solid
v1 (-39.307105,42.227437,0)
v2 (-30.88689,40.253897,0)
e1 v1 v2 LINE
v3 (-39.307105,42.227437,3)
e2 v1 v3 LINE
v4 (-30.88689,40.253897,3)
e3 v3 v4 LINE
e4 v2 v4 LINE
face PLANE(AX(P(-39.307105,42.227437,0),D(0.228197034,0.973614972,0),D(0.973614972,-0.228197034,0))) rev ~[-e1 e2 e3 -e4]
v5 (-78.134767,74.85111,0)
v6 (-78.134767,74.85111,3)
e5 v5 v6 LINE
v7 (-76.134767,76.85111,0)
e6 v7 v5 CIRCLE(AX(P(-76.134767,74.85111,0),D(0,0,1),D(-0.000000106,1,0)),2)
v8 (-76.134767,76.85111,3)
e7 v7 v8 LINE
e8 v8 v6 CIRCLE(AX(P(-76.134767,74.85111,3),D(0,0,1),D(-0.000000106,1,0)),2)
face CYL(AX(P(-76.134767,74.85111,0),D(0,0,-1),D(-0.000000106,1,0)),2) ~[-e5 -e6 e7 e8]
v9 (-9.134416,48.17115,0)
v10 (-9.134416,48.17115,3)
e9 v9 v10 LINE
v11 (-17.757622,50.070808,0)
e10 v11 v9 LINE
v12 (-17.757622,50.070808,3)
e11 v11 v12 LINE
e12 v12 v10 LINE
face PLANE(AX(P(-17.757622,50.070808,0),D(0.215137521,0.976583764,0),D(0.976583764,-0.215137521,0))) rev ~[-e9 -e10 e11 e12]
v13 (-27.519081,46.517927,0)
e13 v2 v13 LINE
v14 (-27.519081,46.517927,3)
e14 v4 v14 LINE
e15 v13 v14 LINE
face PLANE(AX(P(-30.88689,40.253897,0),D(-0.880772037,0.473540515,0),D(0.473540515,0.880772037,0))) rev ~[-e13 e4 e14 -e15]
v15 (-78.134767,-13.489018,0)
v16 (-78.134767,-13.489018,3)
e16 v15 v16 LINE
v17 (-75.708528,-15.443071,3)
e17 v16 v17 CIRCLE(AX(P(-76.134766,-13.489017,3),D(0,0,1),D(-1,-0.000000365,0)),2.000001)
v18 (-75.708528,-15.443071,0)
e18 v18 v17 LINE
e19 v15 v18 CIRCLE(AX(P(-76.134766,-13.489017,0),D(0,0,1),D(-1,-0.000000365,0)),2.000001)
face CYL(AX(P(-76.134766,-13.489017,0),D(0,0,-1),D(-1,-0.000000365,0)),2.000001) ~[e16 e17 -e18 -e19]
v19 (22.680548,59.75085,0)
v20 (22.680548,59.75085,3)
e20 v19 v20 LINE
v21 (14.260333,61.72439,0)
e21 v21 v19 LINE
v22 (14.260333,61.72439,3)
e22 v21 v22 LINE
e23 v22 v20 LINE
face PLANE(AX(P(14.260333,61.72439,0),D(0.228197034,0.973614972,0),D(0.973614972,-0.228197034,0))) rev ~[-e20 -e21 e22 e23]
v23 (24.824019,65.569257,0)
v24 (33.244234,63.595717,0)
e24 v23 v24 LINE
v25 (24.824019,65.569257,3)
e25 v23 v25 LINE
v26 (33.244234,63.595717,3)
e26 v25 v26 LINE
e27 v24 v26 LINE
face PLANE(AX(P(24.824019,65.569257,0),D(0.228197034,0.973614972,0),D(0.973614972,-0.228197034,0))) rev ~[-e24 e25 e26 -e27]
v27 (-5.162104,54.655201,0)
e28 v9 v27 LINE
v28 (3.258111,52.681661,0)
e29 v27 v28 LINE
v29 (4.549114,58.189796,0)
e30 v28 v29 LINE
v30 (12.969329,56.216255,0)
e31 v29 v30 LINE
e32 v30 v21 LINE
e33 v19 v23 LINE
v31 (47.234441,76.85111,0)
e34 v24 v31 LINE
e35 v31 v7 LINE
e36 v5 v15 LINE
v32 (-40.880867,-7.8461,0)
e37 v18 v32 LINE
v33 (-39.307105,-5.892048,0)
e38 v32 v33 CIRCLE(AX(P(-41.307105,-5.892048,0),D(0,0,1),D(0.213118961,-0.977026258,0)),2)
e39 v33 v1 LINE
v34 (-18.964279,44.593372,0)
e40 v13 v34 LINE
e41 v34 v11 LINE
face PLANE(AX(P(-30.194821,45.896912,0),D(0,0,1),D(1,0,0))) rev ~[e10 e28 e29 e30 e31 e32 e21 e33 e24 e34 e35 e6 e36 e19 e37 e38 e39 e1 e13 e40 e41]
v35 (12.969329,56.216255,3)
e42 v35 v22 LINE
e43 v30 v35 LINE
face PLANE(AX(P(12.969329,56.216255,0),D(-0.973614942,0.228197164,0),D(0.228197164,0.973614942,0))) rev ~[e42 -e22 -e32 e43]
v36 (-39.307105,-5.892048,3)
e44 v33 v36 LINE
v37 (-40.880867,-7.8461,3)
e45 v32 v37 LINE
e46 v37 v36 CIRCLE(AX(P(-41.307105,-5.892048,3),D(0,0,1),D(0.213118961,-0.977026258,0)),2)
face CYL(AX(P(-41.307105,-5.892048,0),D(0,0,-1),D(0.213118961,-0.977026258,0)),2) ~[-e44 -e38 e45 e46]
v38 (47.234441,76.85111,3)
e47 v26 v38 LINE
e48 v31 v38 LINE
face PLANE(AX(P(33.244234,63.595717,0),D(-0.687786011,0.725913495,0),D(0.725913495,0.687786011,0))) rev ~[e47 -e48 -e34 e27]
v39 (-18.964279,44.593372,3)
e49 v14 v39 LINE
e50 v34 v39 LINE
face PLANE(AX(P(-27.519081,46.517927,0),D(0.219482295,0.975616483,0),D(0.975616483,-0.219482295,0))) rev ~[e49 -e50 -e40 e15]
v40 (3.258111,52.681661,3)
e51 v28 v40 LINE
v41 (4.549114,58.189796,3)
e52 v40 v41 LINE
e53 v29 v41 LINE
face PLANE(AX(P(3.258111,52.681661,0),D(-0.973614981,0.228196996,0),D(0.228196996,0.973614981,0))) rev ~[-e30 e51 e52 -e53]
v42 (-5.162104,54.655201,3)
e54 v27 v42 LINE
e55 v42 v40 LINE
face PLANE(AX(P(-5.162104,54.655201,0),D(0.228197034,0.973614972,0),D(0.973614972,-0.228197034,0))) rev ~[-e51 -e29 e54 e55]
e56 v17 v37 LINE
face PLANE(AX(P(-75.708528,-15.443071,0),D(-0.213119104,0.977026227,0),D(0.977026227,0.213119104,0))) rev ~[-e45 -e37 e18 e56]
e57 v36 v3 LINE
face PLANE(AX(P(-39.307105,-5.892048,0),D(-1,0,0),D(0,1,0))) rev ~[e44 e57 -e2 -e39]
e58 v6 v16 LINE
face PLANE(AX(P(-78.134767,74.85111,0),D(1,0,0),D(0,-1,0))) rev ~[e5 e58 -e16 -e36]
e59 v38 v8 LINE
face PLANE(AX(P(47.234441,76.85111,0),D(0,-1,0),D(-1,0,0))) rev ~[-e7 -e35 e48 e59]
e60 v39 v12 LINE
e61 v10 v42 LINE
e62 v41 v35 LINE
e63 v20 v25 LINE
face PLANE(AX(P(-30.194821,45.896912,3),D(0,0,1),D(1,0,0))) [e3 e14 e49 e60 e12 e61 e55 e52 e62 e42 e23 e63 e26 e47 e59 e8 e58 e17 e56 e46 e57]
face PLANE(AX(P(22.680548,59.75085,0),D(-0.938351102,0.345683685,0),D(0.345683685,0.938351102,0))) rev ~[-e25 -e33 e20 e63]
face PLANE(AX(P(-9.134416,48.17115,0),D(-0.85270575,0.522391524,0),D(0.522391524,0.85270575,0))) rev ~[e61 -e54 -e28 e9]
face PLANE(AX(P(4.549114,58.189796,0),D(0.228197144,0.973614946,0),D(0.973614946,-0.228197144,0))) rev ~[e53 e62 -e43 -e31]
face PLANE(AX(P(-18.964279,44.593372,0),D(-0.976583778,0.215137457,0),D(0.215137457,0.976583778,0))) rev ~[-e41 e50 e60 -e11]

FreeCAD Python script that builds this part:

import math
import FreeCAD as App
import Part
import Sketcher
from FreeCAD import Vector

doc = App.newDocument("Part")
params = doc.addObject("Spreadsheet::Sheet", "Params")
for row, (alias, value) in enumerate([
    ("sketch1_radius", "2 mm"),
    ("pad1_length", "3 mm"),
], start=1):
    params.set(f"A{row}", alias)
    params.set(f"B{row}", "=" + value)
    params.setAlias(f"B{row}", alias)

body = doc.addObject("PartDesign::Body", "Body")

sketch1 = body.newObject("Sketcher::SketchObject", "Sketch")
sketch1.AttachmentSupport = (doc.getObject("XY_Plane"), [""])
sketch1.MapMode = "FlatFace"
sketch1.addGeometry(Part.ArcOfCircle(Part.Circle(Vector(-76.1, 74.9, 0), Vector(0, 0, 1), 2), math.radians(90), math.radians(180)), False)
sketch1.addGeometry(Part.LineSegment(Vector(-78.1, 74.9, 0), Vector(-78.1, -13.5, 0)), False)
sketch1.addGeometry(Part.ArcOfCircle(Part.Circle(Vector(-76.1, -13.5, 0), Vector(0, 0, 1), 2), math.radians(-180), math.radians(-78)), False)
sketch1.addGeometry(Part.LineSegment(Vector(-75.7, -15.4, 0), Vector(-40.9, -7.8, 0)), False)
sketch1.addGeometry(Part.ArcOfCircle(Part.Circle(Vector(-41.3, -5.9, 0), Vector(0, 0, 1), 2), math.radians(-78), math.radians(0)), False)
sketch1.addGeometry(Part.LineSegment(Vector(-39.3, -5.9, 0), Vector(-39.3, 42.2, 0)), False)
sketch1.addGeometry(Part.LineSegment(Vector(-39.3, 42.2, 0), Vector(-30.9, 40.3, 0)), False)
sketch1.addGeometry(Part.LineSegment(Vector(-30.9, 40.3, 0), Vector(-27.5, 46.5, 0)), False)
sketch1.addGeometry(Part.LineSegment(Vector(-27.5, 46.5, 0), Vector(-19, 44.6, 0)), False)
sketch1.addGeometry(Part.LineSegment(Vector(-19, 44.6, 0), Vector(-17.8, 50.1, 0)), False)
sketch1.addGeometry(Part.LineSegment(Vector(-17.8, 50.1, 0), Vector(-9.1, 48.2, 0)), False)
sketch1.addGeometry(Part.LineSegment(Vector(-9.1, 48.2, 0), Vector(-5.2, 54.7, 0)), False)
sketch1.addGeometry(Part.LineSegment(Vector(-5.2, 54.7, 0), Vector(3.3, 52.7, 0)), False)
sketch1.addGeometry(Part.LineSegment(Vector(3.3, 52.7, 0), Vector(4.5, 58.2, 0)), False)
sketch1.addGeometry(Part.LineSegment(Vector(4.5, 58.2, 0), Vector(13, 56.2, 0)), False)
sketch1.addGeometry(Part.LineSegment(Vector(13, 56.2, 0), Vector(14.3, 61.7, 0)), False)
sketch1.addGeometry(Part.LineSegment(Vector(14.3, 61.7, 0), Vector(22.7, 59.8, 0)), False)
sketch1.addGeometry(Part.LineSegment(Vector(22.7, 59.8, 0), Vector(24.8, 65.6, 0)), False)
sketch1.addGeometry(Part.LineSegment(Vector(24.8, 65.6, 0), Vector(33.2, 63.6, 0)), False)
sketch1.addGeometry(Part.LineSegment(Vector(33.2, 63.6, 0), Vector(47.2, 76.9, 0)), False)
sketch1.addGeometry(Part.LineSegment(Vector(47.2, 76.9, 0), Vector(-76.1, 76.9, 0)), False)
sketch1.addConstraint(Sketcher.Constraint("Tangent", 0, 2, 1, 1))
sketch1.addConstraint(Sketcher.Constraint("Tangent", 1, 2, 2, 1))
sketch1.addConstraint(Sketcher.Constraint("Tangent", 2, 2, 3, 1))
sketch1.addConstraint(Sketcher.Constraint("Tangent", 3, 2, 4, 1))
sketch1.addConstraint(Sketcher.Constraint("Tangent", 4, 2, 5, 1))
sketch1.addConstraint(Sketcher.Constraint("Coincident", 5, 2, 6, 1))
sketch1.addConstraint(Sketcher.Constraint("Coincident", 6, 2, 7, 1))
sketch1.addConstraint(Sketcher.Constraint("Coincident", 7, 2, 8, 1))
sketch1.addConstraint(Sketcher.Constraint("Coincident", 8, 2, 9, 1))
sketch1.addConstraint(Sketcher.Constraint("Coincident", 9, 2, 10, 1))
sketch1.addConstraint(Sketcher.Constraint("Coincident", 10, 2, 11, 1))
sketch1.addConstraint(Sketcher.Constraint("Coincident", 11, 2, 12, 1))
sketch1.addConstraint(Sketcher.Constraint("Coincident", 12, 2, 13, 1))
sketch1.addConstraint(Sketcher.Constraint("Coincident", 13, 2, 14, 1))
sketch1.addConstraint(Sketcher.Constraint("Coincident", 14, 2, 15, 1))
sketch1.addConstraint(Sketcher.Constraint("Coincident", 15, 2, 16, 1))
sketch1.addConstraint(Sketcher.Constraint("Coincident", 16, 2, 17, 1))
sketch1.addConstraint(Sketcher.Constraint("Coincident", 17, 2, 18, 1))
sketch1.addConstraint(Sketcher.Constraint("Coincident", 18, 2, 19, 1))
sketch1.addConstraint(Sketcher.Constraint("Coincident", 19, 2, 20, 1))
sketch1.addConstraint(Sketcher.Constraint("Tangent", 20, 2, 0, 1))
sketch1.addConstraint(Sketcher.Constraint("Vertical", 1))
sketch1.addConstraint(Sketcher.Constraint("Vertical", 5))
sketch1.addConstraint(Sketcher.Constraint("Horizontal", 20))
sketch1.addConstraint(Sketcher.Constraint("Equal", 0, 2))
sketch1.addConstraint(Sketcher.Constraint("Equal", 2, 4))
sketch1.addConstraint(Sketcher.Constraint("Perpendicular", 9, 10))
sketch1.addConstraint(Sketcher.Constraint("Parallel", 6, 12))
sketch1.addConstraint(Sketcher.Constraint("Perpendicular", 12, 13))
sketch1.addConstraint(Sketcher.Constraint("Perpendicular", 13, 14))
sketch1.addConstraint(Sketcher.Constraint("Perpendicular", 14, 15))
sketch1.addConstraint(Sketcher.Constraint("Perpendicular", 15, 16))
sketch1.addConstraint(Sketcher.Constraint("Parallel", 16, 18))
sketch1.addConstraint(Sketcher.Constraint("Equal", 6, 12))
sketch1.addConstraint(Sketcher.Constraint("Equal", 12, 14))
sketch1.addConstraint(Sketcher.Constraint("Equal", 13, 15))
sketch1.addConstraint(Sketcher.Constraint("Equal", 14, 16))
sketch1.addConstraint(Sketcher.Constraint("Equal", 16, 18))
sketch1.addConstraint(Sketcher.Constraint("Radius", 0, 2.0))
sketch1.addConstraint(Sketcher.Constraint("DistanceY", 14, 2, 17, 2, 9.353002))
sketch1.addConstraint(Sketcher.Constraint("DistanceY", 1, 2, 1, 1, 88.340128))
sketch1.addConstraint(Sketcher.Constraint("DistanceY", 3, 2, -1, 1, 7.8461))
sketch1.addConstraint(Sketcher.Constraint("DistanceY", -1, 1, 11, 2, 54.655201))
sketch1.addConstraint(Sketcher.Constraint("DistanceX", 2, 3, 3, 2, 35.253899))
sketch1.addConstraint(Sketcher.Constraint("DistanceX", 7, 2, 8, 2, 8.554802))
sketch1.addConstraint(Sketcher.Constraint("DistanceX", 15, 2, 18, 2, 18.983901))
sketch1.addConstraint(Sketcher.Constraint("Distance", 8, 8.768612))
sketch1.addConstraint(Sketcher.Constraint("Distance", 10, 8.829971))
sketch1.addConstraint(Sketcher.Constraint("Distance", 11, 7.60409))
sketch1.addConstraint(Sketcher.Constraint("Distance", 17, 6.200672))
sketch1.addConstraint(Sketcher.Constraint("DistanceX", 20, 2, 20, 1, 123.369208))
sketch1.addConstraint(Sketcher.Constraint("DistanceY", 5, 1, 5, 2, 48.119485))
sketch1.addConstraint(Sketcher.Constraint("DistanceY", -1, 1, 0, 3, 74.85111))
sketch1.addConstraint(Sketcher.Constraint("DistanceX", 6, 2, -1, 1, 30.88689))
sketch1.addConstraint(Sketcher.Constraint("DistanceX", 7, 2, -1, 1, 27.519081))
sketch1.addConstraint(Sketcher.Constraint("DistanceY", -1, 1, 10, 2, 48.17115))
sketch1.addConstraint(Sketcher.Constraint("DistanceX", -1, 1, 12, 2, 3.258111))
sketch1.addConstraint(Sketcher.Constraint("DistanceY", -1, 1, 12, 2, 52.681661))
sketch1.addConstraint(Sketcher.Constraint("DistanceX", -1, 1, 14, 2, 12.969329))
sketch1.addConstraint(Sketcher.Constraint("DistanceY", 6, 2, 7, 2, 6.26403))
sketch1.setExpression("Constraints[38]", "Params.sketch1_radius")
pad1 = body.newObject("PartDesign::Pad", "Pad")
pad1.Profile = sketch1
pad1.setExpression("Length", "Params.pad1_length")

doc.recompute()
